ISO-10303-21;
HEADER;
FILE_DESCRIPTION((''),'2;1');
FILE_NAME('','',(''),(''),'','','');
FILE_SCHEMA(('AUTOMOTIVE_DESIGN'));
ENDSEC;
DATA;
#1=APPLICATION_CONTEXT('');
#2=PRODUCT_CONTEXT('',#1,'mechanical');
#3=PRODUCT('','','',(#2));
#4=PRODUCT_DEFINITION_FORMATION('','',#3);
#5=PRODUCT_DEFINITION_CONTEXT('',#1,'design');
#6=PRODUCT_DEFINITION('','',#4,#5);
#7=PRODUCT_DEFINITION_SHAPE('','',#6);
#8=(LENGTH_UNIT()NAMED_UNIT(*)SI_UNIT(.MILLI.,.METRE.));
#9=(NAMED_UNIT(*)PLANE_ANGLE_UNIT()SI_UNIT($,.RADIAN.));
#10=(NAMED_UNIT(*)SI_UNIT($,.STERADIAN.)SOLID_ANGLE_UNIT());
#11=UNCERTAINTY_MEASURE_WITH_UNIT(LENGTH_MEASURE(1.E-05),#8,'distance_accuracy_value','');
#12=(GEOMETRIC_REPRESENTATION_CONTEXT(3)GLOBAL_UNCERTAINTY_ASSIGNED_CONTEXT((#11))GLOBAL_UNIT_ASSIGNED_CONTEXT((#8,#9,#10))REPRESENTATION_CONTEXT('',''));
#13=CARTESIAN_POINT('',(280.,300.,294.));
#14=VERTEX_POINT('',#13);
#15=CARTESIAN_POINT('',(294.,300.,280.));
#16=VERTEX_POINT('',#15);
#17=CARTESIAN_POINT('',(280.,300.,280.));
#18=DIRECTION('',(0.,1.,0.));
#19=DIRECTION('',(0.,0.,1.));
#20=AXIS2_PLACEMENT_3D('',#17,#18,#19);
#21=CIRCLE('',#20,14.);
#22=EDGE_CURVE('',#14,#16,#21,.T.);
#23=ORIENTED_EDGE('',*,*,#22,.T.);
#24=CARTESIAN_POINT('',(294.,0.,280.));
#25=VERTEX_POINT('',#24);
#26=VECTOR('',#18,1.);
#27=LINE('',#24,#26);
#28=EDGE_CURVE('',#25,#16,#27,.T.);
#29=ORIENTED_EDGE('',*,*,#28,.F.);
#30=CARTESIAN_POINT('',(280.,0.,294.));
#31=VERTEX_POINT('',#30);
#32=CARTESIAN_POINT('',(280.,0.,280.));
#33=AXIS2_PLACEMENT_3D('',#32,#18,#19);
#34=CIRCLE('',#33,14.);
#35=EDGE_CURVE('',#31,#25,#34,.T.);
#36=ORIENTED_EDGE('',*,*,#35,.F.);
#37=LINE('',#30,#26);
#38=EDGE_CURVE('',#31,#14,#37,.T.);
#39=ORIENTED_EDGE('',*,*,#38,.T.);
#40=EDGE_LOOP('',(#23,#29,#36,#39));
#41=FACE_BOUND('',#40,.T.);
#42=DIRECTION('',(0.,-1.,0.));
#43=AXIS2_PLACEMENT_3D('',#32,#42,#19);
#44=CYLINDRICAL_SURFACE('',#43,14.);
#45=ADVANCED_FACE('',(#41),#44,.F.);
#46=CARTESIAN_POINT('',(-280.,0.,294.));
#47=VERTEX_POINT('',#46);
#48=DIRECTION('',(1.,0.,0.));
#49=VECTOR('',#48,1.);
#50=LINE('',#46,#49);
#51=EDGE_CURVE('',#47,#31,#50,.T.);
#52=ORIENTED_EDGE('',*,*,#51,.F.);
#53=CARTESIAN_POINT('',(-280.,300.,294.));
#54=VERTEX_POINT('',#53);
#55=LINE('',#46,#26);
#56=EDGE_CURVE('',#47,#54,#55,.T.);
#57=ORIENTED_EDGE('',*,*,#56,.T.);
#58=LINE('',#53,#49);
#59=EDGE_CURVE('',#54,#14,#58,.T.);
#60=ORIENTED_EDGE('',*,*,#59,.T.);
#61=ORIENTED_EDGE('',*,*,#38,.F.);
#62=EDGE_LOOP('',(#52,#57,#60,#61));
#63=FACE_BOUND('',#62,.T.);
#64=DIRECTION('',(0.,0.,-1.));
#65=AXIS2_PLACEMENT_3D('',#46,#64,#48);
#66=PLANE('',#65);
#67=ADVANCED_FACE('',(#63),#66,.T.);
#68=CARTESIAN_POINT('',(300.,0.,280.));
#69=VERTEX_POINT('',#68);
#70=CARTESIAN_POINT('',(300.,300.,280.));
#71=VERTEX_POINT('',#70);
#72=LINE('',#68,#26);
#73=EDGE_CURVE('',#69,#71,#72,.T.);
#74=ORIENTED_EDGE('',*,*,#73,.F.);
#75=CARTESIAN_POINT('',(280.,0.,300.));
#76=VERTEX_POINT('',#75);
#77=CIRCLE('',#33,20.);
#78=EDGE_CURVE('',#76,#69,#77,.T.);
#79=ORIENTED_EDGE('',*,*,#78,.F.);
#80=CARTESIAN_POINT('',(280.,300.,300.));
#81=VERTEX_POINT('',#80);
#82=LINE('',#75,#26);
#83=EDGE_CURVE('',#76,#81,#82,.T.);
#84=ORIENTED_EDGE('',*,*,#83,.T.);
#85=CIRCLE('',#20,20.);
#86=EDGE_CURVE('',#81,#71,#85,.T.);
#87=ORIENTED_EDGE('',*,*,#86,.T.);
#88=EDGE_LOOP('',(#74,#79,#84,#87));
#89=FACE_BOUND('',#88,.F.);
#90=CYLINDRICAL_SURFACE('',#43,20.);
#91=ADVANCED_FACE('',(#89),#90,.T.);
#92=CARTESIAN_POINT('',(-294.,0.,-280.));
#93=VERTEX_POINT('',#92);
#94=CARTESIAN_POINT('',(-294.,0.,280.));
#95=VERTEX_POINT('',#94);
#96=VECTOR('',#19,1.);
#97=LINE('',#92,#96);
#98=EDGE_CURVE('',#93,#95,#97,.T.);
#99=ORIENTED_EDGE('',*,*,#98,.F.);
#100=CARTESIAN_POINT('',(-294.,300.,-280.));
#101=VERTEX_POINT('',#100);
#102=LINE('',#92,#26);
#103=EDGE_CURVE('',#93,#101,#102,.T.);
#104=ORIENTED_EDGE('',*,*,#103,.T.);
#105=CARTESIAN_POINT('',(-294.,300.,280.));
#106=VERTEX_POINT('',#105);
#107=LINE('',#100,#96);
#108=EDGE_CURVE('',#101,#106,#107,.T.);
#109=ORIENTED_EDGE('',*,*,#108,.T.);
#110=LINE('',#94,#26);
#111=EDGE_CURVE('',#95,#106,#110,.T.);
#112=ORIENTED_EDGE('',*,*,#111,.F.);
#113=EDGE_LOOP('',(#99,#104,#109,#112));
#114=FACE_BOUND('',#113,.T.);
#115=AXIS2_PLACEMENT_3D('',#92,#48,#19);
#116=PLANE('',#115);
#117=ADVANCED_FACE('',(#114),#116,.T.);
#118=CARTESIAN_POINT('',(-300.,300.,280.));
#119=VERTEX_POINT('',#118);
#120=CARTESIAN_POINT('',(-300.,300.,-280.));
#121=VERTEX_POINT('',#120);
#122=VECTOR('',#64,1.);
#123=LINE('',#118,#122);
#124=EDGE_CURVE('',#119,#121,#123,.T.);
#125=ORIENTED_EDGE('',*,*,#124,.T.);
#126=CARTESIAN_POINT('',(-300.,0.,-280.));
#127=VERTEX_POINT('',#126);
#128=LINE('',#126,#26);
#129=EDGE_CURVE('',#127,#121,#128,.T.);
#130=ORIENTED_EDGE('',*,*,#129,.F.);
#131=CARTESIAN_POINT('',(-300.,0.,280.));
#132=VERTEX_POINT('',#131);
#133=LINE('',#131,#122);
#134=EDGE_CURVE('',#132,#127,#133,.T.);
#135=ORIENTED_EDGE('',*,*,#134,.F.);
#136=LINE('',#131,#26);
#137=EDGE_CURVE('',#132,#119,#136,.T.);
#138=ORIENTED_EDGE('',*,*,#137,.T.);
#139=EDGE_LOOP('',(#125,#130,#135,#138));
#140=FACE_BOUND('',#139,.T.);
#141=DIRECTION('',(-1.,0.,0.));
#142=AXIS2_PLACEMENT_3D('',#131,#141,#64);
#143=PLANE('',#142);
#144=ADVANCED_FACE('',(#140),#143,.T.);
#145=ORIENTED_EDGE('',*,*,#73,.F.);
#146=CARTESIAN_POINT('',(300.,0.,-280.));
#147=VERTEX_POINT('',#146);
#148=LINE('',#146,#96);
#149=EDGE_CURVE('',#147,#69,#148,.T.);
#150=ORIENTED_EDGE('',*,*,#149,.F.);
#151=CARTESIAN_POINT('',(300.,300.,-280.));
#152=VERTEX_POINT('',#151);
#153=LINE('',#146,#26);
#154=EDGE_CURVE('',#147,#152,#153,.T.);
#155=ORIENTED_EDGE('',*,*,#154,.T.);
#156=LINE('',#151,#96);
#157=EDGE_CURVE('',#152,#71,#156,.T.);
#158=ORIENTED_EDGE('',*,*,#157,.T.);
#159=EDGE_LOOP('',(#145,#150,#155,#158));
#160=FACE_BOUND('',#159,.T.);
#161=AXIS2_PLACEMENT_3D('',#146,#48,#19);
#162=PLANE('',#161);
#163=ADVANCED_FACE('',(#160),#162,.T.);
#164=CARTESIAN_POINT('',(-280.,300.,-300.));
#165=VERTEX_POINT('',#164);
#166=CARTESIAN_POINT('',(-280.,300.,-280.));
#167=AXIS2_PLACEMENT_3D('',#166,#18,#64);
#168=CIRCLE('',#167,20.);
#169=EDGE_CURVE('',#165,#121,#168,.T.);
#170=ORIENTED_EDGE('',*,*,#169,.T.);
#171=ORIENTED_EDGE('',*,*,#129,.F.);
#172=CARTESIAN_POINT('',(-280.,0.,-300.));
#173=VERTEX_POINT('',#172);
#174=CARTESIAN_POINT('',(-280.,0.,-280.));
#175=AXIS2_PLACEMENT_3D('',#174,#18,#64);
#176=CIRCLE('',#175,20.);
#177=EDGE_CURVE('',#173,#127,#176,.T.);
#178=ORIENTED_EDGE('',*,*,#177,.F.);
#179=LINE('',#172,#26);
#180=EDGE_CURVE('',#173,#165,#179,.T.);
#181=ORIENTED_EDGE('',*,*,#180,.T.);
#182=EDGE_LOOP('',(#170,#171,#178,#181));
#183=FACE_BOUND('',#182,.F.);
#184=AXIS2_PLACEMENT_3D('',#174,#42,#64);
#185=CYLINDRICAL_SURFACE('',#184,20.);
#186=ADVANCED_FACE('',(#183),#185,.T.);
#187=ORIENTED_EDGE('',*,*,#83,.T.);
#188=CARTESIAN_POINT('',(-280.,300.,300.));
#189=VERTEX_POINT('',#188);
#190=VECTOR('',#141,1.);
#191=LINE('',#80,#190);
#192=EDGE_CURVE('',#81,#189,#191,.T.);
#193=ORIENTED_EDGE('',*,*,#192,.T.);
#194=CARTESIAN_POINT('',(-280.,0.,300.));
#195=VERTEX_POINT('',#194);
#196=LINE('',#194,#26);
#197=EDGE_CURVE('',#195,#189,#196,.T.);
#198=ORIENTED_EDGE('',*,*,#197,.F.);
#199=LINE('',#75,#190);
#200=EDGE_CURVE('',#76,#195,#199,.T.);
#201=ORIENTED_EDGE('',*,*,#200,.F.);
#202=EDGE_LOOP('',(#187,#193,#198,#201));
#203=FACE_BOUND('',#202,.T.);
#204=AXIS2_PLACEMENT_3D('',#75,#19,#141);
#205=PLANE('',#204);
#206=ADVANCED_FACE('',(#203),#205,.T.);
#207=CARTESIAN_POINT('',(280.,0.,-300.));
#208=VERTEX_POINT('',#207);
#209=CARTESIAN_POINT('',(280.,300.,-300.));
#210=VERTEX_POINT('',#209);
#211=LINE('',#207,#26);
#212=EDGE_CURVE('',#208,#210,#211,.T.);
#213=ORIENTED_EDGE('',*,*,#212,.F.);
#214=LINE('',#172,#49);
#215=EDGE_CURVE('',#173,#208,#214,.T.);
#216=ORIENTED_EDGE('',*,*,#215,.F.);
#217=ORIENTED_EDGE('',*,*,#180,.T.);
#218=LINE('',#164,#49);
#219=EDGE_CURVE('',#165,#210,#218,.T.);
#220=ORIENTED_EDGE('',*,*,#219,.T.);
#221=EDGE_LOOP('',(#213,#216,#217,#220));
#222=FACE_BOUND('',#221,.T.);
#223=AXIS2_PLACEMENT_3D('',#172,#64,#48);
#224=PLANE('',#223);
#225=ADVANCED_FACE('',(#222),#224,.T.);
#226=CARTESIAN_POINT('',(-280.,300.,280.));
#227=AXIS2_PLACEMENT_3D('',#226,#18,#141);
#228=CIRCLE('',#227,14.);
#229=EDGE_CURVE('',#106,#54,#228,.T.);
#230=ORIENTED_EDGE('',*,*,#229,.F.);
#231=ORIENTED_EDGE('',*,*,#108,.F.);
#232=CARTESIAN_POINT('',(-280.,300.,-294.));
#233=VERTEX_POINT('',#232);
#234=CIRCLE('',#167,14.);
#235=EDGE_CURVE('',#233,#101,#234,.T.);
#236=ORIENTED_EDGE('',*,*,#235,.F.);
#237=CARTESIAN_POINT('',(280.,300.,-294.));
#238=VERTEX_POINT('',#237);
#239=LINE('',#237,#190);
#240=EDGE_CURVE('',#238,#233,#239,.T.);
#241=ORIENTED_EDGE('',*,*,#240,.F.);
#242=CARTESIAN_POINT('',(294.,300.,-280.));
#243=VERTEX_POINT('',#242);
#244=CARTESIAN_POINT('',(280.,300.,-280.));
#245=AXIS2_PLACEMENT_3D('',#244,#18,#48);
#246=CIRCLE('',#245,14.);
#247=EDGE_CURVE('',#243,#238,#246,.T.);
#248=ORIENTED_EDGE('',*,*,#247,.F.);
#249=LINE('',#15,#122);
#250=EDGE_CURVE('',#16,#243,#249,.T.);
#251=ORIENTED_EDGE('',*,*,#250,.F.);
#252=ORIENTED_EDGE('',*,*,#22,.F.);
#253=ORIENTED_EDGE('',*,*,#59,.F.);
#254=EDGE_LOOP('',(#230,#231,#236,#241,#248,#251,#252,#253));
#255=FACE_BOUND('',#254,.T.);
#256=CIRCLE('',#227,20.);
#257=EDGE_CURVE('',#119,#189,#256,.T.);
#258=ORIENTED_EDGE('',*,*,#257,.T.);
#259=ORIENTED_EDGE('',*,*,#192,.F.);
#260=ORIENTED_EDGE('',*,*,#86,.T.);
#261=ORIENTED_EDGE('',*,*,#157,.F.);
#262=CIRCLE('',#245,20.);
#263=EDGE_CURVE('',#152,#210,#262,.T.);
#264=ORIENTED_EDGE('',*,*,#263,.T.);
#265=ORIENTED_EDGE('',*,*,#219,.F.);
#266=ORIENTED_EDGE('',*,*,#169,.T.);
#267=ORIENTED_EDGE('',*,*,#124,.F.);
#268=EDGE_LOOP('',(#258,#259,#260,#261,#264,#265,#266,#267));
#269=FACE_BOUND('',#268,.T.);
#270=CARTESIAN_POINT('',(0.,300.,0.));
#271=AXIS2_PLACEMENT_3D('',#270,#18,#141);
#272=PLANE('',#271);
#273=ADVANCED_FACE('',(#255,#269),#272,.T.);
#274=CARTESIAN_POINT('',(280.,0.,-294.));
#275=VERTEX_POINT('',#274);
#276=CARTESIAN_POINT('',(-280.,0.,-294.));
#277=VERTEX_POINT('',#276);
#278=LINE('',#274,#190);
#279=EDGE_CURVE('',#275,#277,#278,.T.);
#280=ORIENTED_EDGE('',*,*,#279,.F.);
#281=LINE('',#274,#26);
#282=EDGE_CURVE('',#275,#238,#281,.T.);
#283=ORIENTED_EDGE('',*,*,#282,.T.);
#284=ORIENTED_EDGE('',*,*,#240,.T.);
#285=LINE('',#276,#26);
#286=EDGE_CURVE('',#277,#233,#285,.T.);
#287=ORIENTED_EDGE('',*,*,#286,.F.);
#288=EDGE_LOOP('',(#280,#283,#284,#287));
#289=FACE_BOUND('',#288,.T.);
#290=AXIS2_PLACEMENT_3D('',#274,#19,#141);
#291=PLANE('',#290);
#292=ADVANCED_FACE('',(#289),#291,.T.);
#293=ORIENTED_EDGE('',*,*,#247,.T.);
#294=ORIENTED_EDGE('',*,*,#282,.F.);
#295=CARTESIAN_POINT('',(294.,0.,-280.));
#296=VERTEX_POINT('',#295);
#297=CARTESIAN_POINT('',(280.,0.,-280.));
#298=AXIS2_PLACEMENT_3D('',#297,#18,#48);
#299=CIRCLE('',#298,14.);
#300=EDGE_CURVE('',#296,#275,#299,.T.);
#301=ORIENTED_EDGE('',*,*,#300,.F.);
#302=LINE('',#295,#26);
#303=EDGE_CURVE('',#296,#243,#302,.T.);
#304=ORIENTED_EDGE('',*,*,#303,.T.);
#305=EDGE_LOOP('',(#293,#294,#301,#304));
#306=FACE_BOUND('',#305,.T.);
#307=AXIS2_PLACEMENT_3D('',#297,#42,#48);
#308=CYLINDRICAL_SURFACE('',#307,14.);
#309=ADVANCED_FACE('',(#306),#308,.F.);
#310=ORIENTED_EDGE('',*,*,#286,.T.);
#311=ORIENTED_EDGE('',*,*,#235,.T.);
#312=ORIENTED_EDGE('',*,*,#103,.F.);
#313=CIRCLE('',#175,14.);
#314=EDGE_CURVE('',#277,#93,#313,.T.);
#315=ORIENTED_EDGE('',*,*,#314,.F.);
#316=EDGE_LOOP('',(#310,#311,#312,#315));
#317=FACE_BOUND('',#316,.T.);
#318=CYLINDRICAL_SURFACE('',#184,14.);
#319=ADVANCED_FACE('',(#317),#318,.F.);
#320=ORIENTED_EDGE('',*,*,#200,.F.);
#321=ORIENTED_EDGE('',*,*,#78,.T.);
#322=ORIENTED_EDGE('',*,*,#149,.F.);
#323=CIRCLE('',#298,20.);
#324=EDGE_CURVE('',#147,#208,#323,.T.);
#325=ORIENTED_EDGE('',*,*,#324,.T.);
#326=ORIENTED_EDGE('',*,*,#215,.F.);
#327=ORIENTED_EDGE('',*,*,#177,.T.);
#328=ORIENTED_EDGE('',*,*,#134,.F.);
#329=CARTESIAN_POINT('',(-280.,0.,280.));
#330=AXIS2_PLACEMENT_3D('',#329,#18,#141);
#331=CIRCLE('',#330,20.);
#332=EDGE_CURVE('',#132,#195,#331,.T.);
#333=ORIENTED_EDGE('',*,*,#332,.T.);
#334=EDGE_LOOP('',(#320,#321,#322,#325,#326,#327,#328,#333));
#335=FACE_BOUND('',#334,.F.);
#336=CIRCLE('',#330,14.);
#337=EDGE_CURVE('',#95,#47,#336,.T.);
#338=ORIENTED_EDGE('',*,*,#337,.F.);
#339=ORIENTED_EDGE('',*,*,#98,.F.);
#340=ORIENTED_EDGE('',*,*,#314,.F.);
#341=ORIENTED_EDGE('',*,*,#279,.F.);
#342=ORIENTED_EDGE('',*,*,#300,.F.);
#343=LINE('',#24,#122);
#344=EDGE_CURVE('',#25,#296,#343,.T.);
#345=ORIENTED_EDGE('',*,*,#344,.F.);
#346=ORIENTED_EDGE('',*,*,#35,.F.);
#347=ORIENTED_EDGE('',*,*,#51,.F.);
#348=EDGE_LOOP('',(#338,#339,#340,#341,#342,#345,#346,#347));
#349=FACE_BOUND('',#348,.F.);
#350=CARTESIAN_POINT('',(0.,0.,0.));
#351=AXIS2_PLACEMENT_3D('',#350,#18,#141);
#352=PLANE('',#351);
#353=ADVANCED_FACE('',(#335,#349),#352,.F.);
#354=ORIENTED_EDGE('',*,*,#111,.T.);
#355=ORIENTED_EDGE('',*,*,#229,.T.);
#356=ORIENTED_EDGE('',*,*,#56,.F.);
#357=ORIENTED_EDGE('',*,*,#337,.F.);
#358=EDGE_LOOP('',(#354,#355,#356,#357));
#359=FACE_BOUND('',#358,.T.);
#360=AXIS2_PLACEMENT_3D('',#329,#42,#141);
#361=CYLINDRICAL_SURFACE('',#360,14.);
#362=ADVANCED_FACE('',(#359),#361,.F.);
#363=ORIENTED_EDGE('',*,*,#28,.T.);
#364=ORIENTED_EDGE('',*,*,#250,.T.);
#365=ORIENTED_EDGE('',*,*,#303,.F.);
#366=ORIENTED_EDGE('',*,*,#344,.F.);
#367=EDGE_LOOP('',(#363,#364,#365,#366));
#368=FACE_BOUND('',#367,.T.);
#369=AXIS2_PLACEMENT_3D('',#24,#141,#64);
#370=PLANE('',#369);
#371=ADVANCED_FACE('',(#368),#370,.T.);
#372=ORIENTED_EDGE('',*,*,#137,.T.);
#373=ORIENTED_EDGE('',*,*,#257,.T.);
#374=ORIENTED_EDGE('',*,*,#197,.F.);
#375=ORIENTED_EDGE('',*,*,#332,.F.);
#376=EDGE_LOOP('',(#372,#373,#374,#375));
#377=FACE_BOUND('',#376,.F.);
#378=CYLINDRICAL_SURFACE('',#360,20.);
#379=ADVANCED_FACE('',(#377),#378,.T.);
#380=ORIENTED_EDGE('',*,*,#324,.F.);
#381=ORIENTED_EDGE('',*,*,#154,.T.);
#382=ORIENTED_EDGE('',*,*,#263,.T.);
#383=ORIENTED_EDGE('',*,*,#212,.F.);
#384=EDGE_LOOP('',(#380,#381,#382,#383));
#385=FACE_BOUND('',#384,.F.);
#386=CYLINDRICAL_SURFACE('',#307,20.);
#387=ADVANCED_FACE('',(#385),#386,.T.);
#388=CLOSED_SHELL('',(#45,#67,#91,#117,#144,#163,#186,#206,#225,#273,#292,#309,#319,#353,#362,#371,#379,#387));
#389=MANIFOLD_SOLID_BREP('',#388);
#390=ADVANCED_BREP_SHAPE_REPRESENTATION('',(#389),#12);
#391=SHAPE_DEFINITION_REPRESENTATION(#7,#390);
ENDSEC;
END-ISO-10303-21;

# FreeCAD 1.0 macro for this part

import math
import FreeCAD as App
import Part
import Sketcher

doc = App.newDocument("Part")
body = doc.addObject("PartDesign::Body", "Body")

# Sketch on XZ plane
sketch1 = doc.addObject("Sketcher::SketchObject", "Sketch")
body.addObject(sketch1)
sketch1.AttachmentSupport = (doc.XZ_Plane, [""])
sketch1.MapMode = "FlatFace"
sketch1.addGeometry([
    Part.LineSegment(App.Vector(-280, 300, 0), App.Vector(280, 300, 0)),  # 0
    Part.ArcOfCircle(Part.Circle(App.Vector(280, 280, 0), App.Vector(0, 0, 1), 20), math.radians(0), math.radians(90)),  # 1
    Part.LineSegment(App.Vector(300, 280, 0), App.Vector(300, -280, 0)),  # 2
    Part.ArcOfCircle(Part.Circle(App.Vector(280, -280, 0), App.Vector(0, 0, 1), 20), math.radians(-90), math.radians(0)),  # 3
    Part.LineSegment(App.Vector(280, -300, 0), App.Vector(-280, -300, 0)),  # 4
    Part.ArcOfCircle(Part.Circle(App.Vector(-280, -280, 0), App.Vector(0, 0, 1), 20), math.radians(180), math.radians(270)),  # 5
    Part.LineSegment(App.Vector(-300, -280, 0), App.Vector(-300, 280, 0)),  # 6
    Part.ArcOfCircle(Part.Circle(App.Vector(-280, 280, 0), App.Vector(0, 0, 1), 20), math.radians(90), math.radians(180)),  # 7
    Part.LineSegment(App.Vector(280, 294, 0), App.Vector(-280, 294, 0)),  # 8
    Part.ArcOfCircle(Part.Circle(App.Vector(-280, 280, 0), App.Vector(0, 0, 1), 14), math.radians(90), math.radians(180)),  # 9
    Part.LineSegment(App.Vector(-294, 280, 0), App.Vector(-294, -280, 0)),  # 10
    Part.ArcOfCircle(Part.Circle(App.Vector(-280, -280, 0), App.Vector(0, 0, 1), 14), math.radians(180), math.radians(270)),  # 11
    Part.LineSegment(App.Vector(-280, -294, 0), App.Vector(280, -294, 0)),  # 12
    Part.ArcOfCircle(Part.Circle(App.Vector(280, -280, 0), App.Vector(0, 0, 1), 14), math.radians(-90), math.radians(0)),  # 13
    Part.LineSegment(App.Vector(294, -280, 0), App.Vector(294, 280, 0)),  # 14
    Part.ArcOfCircle(Part.Circle(App.Vector(280, 280, 0), App.Vector(0, 0, 1), 14), math.radians(0), math.radians(90)),  # 15
], False)
sketch1.addConstraint([
    Sketcher.Constraint("Tangent", 0, 2, 1, 2),
    Sketcher.Constraint("Tangent", 1, 1, 2, 1),
    Sketcher.Constraint("Tangent", 2, 2, 3, 2),
    Sketcher.Constraint("Tangent", 3, 1, 4, 1),
    Sketcher.Constraint("Tangent", 4, 2, 5, 2),
    Sketcher.Constraint("Tangent", 5, 1, 6, 1),
    Sketcher.Constraint("Tangent", 6, 2, 7, 2),
    Sketcher.Constraint("Tangent", 7, 1, 0, 1),
    Sketcher.Constraint("Tangent", 8, 2, 9, 1),
    Sketcher.Constraint("Tangent", 9, 2, 10, 1),
    Sketcher.Constraint("Tangent", 10, 2, 11, 1),
    Sketcher.Constraint("Tangent", 11, 2, 12, 1),
    Sketcher.Constraint("Tangent", 12, 2, 13, 1),
    Sketcher.Constraint("Tangent", 13, 2, 14, 1),
    Sketcher.Constraint("Tangent", 14, 2, 15, 1),
    Sketcher.Constraint("Tangent", 15, 2, 8, 1),
    Sketcher.Constraint("Horizontal", 0),
    Sketcher.Constraint("Vertical", 2),
    Sketcher.Constraint("Horizontal", 4),
    Sketcher.Constraint("Vertical", 6),
    Sketcher.Constraint("Horizontal", 8),
    Sketcher.Constraint("Vertical", 10),
    Sketcher.Constraint("Horizontal", 12),
    Sketcher.Constraint("Vertical", 14),
    Sketcher.Constraint("Coincident", 9, 3, 7, 3),
    Sketcher.Constraint("Coincident", 11, 3, 5, 3),
    Sketcher.Constraint("Coincident", 13, 3, 3, 3),
    Sketcher.Constraint("Equal", 1, 3),
    Sketcher.Constraint("Equal", 3, 5),
    Sketcher.Constraint("Equal", 5, 7),
    Sketcher.Constraint("Equal", 13, 15),
    Sketcher.Constraint("Symmetric", 1, 3, 5, 3, -1, 1),
    Sketcher.Constraint("Equal", 12, 2),
    Sketcher.Constraint("Radius", 1, 20.0),
    Sketcher.Constraint("Radius", 9, 14.0),
    Sketcher.Constraint("DistanceX", 0, 1, 0, 2, 560.0),
])
pad1 = doc.addObject("PartDesign::Pad", "Pad")
body.addObject(pad1)
pad1.Profile = sketch1
pad1.Length = 300
pad1.Reversed = True

doc.recompute()
